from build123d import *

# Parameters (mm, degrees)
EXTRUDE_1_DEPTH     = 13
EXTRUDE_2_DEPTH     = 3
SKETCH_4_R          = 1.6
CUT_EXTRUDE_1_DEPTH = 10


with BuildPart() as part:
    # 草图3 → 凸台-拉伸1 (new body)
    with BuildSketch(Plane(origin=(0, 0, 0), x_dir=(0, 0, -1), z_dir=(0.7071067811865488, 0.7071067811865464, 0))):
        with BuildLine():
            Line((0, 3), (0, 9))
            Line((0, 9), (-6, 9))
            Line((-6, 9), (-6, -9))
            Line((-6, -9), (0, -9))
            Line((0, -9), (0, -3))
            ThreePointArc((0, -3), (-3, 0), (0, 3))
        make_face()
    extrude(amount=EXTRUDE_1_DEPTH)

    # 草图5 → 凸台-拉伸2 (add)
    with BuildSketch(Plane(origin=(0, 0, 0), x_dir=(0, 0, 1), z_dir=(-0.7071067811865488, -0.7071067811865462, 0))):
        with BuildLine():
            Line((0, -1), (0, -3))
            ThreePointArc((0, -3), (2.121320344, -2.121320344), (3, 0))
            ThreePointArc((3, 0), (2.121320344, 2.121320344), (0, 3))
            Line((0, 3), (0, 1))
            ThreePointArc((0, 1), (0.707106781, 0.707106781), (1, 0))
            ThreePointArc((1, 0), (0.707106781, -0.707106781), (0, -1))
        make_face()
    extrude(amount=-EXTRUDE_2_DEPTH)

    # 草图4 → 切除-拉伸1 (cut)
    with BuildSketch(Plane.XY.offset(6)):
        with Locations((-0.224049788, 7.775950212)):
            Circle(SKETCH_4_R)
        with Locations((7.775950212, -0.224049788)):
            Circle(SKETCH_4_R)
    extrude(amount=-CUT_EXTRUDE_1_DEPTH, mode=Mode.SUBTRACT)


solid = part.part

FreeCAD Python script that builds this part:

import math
import FreeCAD as App
import Part
import Sketcher

V = App.Vector
Q = App.Units.Quantity

doc = App.newDocument("Part")
body = doc.addObject("PartDesign::Body", "Body")

# Sketch on an angled plane
sketch1 = body.newObject("Sketcher::SketchObject", "Sketch")
sketch1.Placement = App.Placement(V(0, 0, 0), App.Rotation(V(0, 0, -1), V(-0.707106781, 0.707106781, 0), V(0.707106781, 0.707106781, 0), "ZXY"))
sketch1.addGeometry([
    Part.LineSegment(V(0, 3, 0), V(0, 9, 0)),  # 0
    Part.LineSegment(V(0, 9, 0), V(-6, 9, 0)),  # 1
    Part.LineSegment(V(-6, 9, 0), V(-6, -9, 0)),  # 2
    Part.LineSegment(V(-6, -9, 0), V(0, -9, 0)),  # 3
    Part.LineSegment(V(0, -9, 0), V(0, -3, 0)),  # 4
    Part.ArcOfCircle(Part.Circle(V(0, 0, 0), V(0, 0, 1), 3), math.radians(90), math.radians(270)),  # 5
], False)
sketch1.addConstraint([
    Sketcher.Constraint("Coincident", 0, 2, 1, 1),
    Sketcher.Constraint("Coincident", 1, 2, 2, 1),
    Sketcher.Constraint("Coincident", 2, 2, 3, 1),
    Sketcher.Constraint("Coincident", 3, 2, 4, 1),
    Sketcher.Constraint("Coincident", 4, 2, 5, 2),
    Sketcher.Constraint("Coincident", 5, 1, 0, 1),
    Sketcher.Constraint("Vertical", 0),
    Sketcher.Constraint("Horizontal", 1),
    Sketcher.Constraint("Vertical", 2),
    Sketcher.Constraint("Horizontal", 3),
    Sketcher.Constraint("Vertical", 4),
    Sketcher.Constraint("Coincident", 5, 3, -1, 1),
    Sketcher.Constraint("Symmetric", 0, 2, 3, 2, -1, 1),
    Sketcher.Constraint("PointOnObject", 0, 2, -2),
    Sketcher.Constraint("Equal", 3, 0),
    Sketcher.Constraint("Radius", 5, Q("3 mm")),
    Sketcher.Constraint("DistanceX", 1, 2, 1, 1, Q("6 mm")),
])
pad1 = body.newObject("PartDesign::Pad", "Pad")
pad1.Profile = sketch1
pad1.Length = 13

# Sketch on an angled plane
sketch2 = body.newObject("Sketcher::SketchObject", "Sketch001")
sketch2.Placement = App.Placement(V(0, 0, 0), App.Rotation(V(0, 0, 1), V(-0.707106781, 0.707106781, 0), V(-0.707106781, -0.707106781, 0), "ZXY"))
sketch2.addGeometry([
    Part.LineSegment(V(0, -1, 0), V(0, -3, 0)),  # 0
    Part.ArcOfCircle(Part.Circle(V(0, 0, 0), V(0, 0, 1), 3), math.radians(-90), math.radians(0)),  # 1
    Part.ArcOfCircle(Part.Circle(V(0, 0, 0), V(0, 0, 1), 3), math.radians(0), math.radians(90)),  # 2
    Part.LineSegment(V(0, 3, 0), V(0, 1, 0)),  # 3
    Part.ArcOfCircle(Part.Circle(V(0, 0, 0), V(0, 0, 1), 1), math.radians(0), math.radians(90)),  # 4
    Part.ArcOfCircle(Part.Circle(V(0, 0, 0), V(0, 0, 1), 1), math.radians(-90), math.radians(0)),  # 5
], False)
sketch2.addConstraint([
    Sketcher.Constraint("Coincident", 0, 2, 1, 1),
    Sketcher.Constraint("Tangent", 1, 2, 2, 1),
    Sketcher.Constraint("Coincident", 2, 2, 3, 1),
    Sketcher.Constraint("Coincident", 3, 2, 4, 2),
    Sketcher.Constraint("Tangent", 4, 1, 5, 2),
    Sketcher.Constraint("Coincident", 5, 1, 0, 1),
    Sketcher.Constraint("Vertical", 0),
    Sketcher.Constraint("Vertical", 3),
    Sketcher.Constraint("Coincident", 1, 3, -1, 1),
    Sketcher.Constraint("Coincident", 4, 3, -1, 1),
    Sketcher.Constraint("Equal", 1, 2),
    Sketcher.Constraint("Equal", 4, 5),
    Sketcher.Constraint("PointOnObject", 0, 2, -2),
    Sketcher.Constraint("PointOnObject", 1, 2, -1),
    Sketcher.Constraint("PointOnObject", 2, 2, -2),
    Sketcher.Constraint("PointOnObject", 4, 1, -1),
    Sketcher.Constraint("Radius", 1, Q("3 mm")),
    Sketcher.Constraint("Radius", 4, Q("1 mm")),
])
pad2 = body.newObject("PartDesign::Pad", "Pad001")
pad2.Profile = sketch2
pad2.Length = 3
pad2.Reversed = True

# Sketch on XY plane
sketch3 = body.newObject("Sketcher::SketchObject", "Sketch002")
sketch3.AttachmentSupport = (doc.getObject("XY_Plane"), [""])
sketch3.MapMode = "FlatFace"
sketch3.AttachmentOffset = App.Placement(V(0, 0, 6), App.Rotation())
sketch3.addGeometry([
    Part.Circle(V(-0.2, 7.8, 0), V(0, 0, 1), 1.6),
    Part.Circle(V(7.8, -0.2, 0), V(0, 0, 1), 1.6),
], False)
sketch3.addConstraint([
    Sketcher.Constraint("Equal", 0, 1),
    Sketcher.Constraint("Diameter", 0, Q("3.2 mm")),
    Sketcher.Constraint("DistanceX", 0, 3, 1, 3, Q("8 mm")),
    Sketcher.Constraint("DistanceY", 1, 3, 0, 3, Q("8 mm")),
    Sketcher.Constraint("DistanceX", 0, 3, -1, 1, Q("0.22405 mm")),
    Sketcher.Constraint("DistanceY", -1, 1, 0, 3, Q("7.77595 mm")),
])
pocket1 = body.newObject("PartDesign::Pocket", "Pocket")
pocket1.Profile = sketch3
pocket1.Length = 10

doc.recompute()
